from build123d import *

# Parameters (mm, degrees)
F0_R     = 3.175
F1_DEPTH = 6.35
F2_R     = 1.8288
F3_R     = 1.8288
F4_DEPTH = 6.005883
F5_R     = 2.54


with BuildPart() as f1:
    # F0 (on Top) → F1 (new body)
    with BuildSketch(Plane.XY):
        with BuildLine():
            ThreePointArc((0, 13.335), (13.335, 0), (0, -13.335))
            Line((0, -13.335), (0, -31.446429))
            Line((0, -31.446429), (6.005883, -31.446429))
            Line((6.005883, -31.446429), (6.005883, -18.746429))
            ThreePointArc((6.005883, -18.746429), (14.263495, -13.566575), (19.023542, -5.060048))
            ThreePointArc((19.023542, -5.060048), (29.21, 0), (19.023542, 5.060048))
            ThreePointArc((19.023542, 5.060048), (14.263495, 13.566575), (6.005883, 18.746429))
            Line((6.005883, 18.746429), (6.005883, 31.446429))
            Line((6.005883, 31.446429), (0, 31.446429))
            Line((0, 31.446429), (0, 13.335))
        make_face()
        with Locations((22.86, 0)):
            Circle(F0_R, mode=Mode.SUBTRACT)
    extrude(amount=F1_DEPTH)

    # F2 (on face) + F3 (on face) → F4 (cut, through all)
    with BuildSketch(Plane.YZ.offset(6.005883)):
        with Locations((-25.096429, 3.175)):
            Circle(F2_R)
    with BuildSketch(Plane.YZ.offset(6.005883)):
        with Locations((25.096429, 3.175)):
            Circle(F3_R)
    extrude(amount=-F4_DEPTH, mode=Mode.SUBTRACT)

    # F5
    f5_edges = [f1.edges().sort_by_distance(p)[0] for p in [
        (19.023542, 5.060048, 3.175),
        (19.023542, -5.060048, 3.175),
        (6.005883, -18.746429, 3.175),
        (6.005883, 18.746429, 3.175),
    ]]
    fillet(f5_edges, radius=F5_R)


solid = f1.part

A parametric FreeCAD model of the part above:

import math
import FreeCAD as App
import Part
import Sketcher

V = App.Vector
Q = App.Units.Quantity


def edges_at(feature, points):
    """Names of the edges that pass closest to the given points."""
    edges = feature.Shape.Edges
    near = lambda p: min(range(len(edges)), key=lambda i: edges[i].distToShape(Part.Vertex(*p))[0])
    return sorted({f"Edge{near(p) + 1}" for p in points})

doc = App.newDocument("Part")
body = doc.addObject("PartDesign::Body", "Body")

sketch1 = doc.addObject("Sketcher::SketchObject", "Sketch")
body.addObject(sketch1)
sketch1.AttachmentSupport = (doc.XY_Plane, [""])
sketch1.MapMode = "FlatFace"
sketch1.addGeometry([
    Part.ArcOfCircle(Part.Circle(V(0, 0, 0), V(0, 0, 1), 13.3), math.radians(-90), math.radians(90)),
    Part.LineSegment(V(0, -13.3, 0), V(0, -31.4, 0)),
    Part.LineSegment(V(0, -31.4, 0), V(6, -31.4, 0)),
    Part.LineSegment(V(6, -31.4, 0), V(6, -18.7, 0)),
    Part.ArcOfCircle(Part.Circle(V(0, 0, 0), V(0, 0, 1), 19.7), math.radians(-72), math.radians(-15)),
    Part.ArcOfCircle(Part.Circle(V(22.9, 0, 0), V(0, 0, 1), 6.3), math.radians(-127), math.radians(127)),
    Part.ArcOfCircle(Part.Circle(V(0, 0, 0), V(0, 0, 1), 19.7), math.radians(15), math.radians(72)),
    Part.LineSegment(V(6, 18.7, 0), V(6, 31.4, 0)),
    Part.LineSegment(V(6, 31.4, 0), V(0, 31.4, 0)),
    Part.LineSegment(V(0, 31.4, 0), V(0, 13.3, 0)),
    Part.Circle(V(22.9, 0, 0), V(0, 0, 1), 3.2),
], False)
sketch1.addConstraint([
    Sketcher.Constraint("Coincident", 0, 1, 1, 1),
    Sketcher.Constraint("Coincident", 1, 2, 2, 1),
    Sketcher.Constraint("Coincident", 2, 2, 3, 1),
    Sketcher.Constraint("Coincident", 3, 2, 4, 1),
    Sketcher.Constraint("Coincident", 4, 2, 5, 1),
    Sketcher.Constraint("Coincident", 5, 2, 6, 1),
    Sketcher.Constraint("Coincident", 6, 2, 7, 1),
    Sketcher.Constraint("Coincident", 7, 2, 8, 1),
    Sketcher.Constraint("Coincident", 8, 2, 9, 1),
    Sketcher.Constraint("Coincident", 9, 2, 0, 2),
    Sketcher.Constraint("Vertical", 1),
    Sketcher.Constraint("Horizontal", 2),
    Sketcher.Constraint("Vertical", 3),
    Sketcher.Constraint("Vertical", 7),
    Sketcher.Constraint("Horizontal", 8),
    Sketcher.Constraint("Vertical", 9),
    Sketcher.Constraint("Coincident", 0, 3, -1, 1),
    Sketcher.Constraint("Coincident", 4, 3, -1, 1),
    Sketcher.Constraint("Coincident", 6, 3, -1, 1),
    Sketcher.Constraint("Coincident", 10, 3, 5, 3),
    Sketcher.Constraint("Equal", 4, 6),
    Sketcher.Constraint("Symmetric", 1, 2, 8, 2, -1, 1),
    Sketcher.Constraint("PointOnObject", 5, 3, -1),
    Sketcher.Constraint("PointOnObject", 0, 1, -2),
    Sketcher.Constraint("Vertical", 3, 2, 6, 2),
    Sketcher.Constraint("Diameter", 10, Q("0.25 in")),
    Sketcher.Constraint("Radius", 5, Q("0.25 in")),
    Sketcher.Constraint("DistanceY", 3, 1, 3, 2, Q("0.5 in")),
    Sketcher.Constraint("Radius", 0, Q("0.525 in")),
    Sketcher.Constraint("Radius", 4, Q("0.7749999 in")),
    Sketcher.Constraint("DistanceX", -1, 1, 5, 3, Q("0.9 in")),
    Sketcher.Constraint("DistanceY", 1, 2, 1, 1, 18.111429),
])
pad1 = doc.addObject("PartDesign::Pad", "Pad")
body.addObject(pad1)
pad1.Profile = sketch1
pad1.Length = Q("0.25 in")

sketch2 = doc.addObject("Sketcher::SketchObject", "Sketch001")
body.addObject(sketch2)
sketch2.AttachmentSupport = (doc.YZ_Plane, [""])
sketch2.MapMode = "FlatFace"
sketch2.AttachmentOffset = App.Placement(V(0, 0, 6.005883), App.Rotation())
sketch2.addGeometry([
    Part.Circle(V(-25.1, 3.2, 0), V(0, 0, 1), 1.8),
    Part.Circle(V(25.1, 3.2, 0), V(0, 0, 1), 1.8),
], False)
sketch2.addConstraint([
    Sketcher.Constraint("Equal", 0, 1),
    Sketcher.Constraint("Symmetric", 0, 3, 1, 3, -2),
    Sketcher.Constraint("Diameter", 0, Q("0.144 in")),
    Sketcher.Constraint("DistanceY", -1, 1, 0, 3, Q("0.125 in")),
    Sketcher.Constraint("DistanceX", 0, 3, -1, 1, 25.096429),
])
pocket1 = doc.addObject("PartDesign::Pocket", "Pocket")
body.addObject(pocket1)
pocket1.Profile = sketch2
pocket1.Type = "ThroughAll"
doc.recompute()

fillet = doc.addObject("PartDesign::Fillet", "Fillet")
body.addObject(fillet)
fillet.Base = (pocket1, edges_at(pocket1, [
    (19.024, 5.06, 3.175),
    (19.024, -5.06, 3.175),
    (6.006, -18.746, 3.175),
    (6.006, 18.746, 3.175),
]))
fillet.Radius = Q("0.1 in")

doc.recompute()
